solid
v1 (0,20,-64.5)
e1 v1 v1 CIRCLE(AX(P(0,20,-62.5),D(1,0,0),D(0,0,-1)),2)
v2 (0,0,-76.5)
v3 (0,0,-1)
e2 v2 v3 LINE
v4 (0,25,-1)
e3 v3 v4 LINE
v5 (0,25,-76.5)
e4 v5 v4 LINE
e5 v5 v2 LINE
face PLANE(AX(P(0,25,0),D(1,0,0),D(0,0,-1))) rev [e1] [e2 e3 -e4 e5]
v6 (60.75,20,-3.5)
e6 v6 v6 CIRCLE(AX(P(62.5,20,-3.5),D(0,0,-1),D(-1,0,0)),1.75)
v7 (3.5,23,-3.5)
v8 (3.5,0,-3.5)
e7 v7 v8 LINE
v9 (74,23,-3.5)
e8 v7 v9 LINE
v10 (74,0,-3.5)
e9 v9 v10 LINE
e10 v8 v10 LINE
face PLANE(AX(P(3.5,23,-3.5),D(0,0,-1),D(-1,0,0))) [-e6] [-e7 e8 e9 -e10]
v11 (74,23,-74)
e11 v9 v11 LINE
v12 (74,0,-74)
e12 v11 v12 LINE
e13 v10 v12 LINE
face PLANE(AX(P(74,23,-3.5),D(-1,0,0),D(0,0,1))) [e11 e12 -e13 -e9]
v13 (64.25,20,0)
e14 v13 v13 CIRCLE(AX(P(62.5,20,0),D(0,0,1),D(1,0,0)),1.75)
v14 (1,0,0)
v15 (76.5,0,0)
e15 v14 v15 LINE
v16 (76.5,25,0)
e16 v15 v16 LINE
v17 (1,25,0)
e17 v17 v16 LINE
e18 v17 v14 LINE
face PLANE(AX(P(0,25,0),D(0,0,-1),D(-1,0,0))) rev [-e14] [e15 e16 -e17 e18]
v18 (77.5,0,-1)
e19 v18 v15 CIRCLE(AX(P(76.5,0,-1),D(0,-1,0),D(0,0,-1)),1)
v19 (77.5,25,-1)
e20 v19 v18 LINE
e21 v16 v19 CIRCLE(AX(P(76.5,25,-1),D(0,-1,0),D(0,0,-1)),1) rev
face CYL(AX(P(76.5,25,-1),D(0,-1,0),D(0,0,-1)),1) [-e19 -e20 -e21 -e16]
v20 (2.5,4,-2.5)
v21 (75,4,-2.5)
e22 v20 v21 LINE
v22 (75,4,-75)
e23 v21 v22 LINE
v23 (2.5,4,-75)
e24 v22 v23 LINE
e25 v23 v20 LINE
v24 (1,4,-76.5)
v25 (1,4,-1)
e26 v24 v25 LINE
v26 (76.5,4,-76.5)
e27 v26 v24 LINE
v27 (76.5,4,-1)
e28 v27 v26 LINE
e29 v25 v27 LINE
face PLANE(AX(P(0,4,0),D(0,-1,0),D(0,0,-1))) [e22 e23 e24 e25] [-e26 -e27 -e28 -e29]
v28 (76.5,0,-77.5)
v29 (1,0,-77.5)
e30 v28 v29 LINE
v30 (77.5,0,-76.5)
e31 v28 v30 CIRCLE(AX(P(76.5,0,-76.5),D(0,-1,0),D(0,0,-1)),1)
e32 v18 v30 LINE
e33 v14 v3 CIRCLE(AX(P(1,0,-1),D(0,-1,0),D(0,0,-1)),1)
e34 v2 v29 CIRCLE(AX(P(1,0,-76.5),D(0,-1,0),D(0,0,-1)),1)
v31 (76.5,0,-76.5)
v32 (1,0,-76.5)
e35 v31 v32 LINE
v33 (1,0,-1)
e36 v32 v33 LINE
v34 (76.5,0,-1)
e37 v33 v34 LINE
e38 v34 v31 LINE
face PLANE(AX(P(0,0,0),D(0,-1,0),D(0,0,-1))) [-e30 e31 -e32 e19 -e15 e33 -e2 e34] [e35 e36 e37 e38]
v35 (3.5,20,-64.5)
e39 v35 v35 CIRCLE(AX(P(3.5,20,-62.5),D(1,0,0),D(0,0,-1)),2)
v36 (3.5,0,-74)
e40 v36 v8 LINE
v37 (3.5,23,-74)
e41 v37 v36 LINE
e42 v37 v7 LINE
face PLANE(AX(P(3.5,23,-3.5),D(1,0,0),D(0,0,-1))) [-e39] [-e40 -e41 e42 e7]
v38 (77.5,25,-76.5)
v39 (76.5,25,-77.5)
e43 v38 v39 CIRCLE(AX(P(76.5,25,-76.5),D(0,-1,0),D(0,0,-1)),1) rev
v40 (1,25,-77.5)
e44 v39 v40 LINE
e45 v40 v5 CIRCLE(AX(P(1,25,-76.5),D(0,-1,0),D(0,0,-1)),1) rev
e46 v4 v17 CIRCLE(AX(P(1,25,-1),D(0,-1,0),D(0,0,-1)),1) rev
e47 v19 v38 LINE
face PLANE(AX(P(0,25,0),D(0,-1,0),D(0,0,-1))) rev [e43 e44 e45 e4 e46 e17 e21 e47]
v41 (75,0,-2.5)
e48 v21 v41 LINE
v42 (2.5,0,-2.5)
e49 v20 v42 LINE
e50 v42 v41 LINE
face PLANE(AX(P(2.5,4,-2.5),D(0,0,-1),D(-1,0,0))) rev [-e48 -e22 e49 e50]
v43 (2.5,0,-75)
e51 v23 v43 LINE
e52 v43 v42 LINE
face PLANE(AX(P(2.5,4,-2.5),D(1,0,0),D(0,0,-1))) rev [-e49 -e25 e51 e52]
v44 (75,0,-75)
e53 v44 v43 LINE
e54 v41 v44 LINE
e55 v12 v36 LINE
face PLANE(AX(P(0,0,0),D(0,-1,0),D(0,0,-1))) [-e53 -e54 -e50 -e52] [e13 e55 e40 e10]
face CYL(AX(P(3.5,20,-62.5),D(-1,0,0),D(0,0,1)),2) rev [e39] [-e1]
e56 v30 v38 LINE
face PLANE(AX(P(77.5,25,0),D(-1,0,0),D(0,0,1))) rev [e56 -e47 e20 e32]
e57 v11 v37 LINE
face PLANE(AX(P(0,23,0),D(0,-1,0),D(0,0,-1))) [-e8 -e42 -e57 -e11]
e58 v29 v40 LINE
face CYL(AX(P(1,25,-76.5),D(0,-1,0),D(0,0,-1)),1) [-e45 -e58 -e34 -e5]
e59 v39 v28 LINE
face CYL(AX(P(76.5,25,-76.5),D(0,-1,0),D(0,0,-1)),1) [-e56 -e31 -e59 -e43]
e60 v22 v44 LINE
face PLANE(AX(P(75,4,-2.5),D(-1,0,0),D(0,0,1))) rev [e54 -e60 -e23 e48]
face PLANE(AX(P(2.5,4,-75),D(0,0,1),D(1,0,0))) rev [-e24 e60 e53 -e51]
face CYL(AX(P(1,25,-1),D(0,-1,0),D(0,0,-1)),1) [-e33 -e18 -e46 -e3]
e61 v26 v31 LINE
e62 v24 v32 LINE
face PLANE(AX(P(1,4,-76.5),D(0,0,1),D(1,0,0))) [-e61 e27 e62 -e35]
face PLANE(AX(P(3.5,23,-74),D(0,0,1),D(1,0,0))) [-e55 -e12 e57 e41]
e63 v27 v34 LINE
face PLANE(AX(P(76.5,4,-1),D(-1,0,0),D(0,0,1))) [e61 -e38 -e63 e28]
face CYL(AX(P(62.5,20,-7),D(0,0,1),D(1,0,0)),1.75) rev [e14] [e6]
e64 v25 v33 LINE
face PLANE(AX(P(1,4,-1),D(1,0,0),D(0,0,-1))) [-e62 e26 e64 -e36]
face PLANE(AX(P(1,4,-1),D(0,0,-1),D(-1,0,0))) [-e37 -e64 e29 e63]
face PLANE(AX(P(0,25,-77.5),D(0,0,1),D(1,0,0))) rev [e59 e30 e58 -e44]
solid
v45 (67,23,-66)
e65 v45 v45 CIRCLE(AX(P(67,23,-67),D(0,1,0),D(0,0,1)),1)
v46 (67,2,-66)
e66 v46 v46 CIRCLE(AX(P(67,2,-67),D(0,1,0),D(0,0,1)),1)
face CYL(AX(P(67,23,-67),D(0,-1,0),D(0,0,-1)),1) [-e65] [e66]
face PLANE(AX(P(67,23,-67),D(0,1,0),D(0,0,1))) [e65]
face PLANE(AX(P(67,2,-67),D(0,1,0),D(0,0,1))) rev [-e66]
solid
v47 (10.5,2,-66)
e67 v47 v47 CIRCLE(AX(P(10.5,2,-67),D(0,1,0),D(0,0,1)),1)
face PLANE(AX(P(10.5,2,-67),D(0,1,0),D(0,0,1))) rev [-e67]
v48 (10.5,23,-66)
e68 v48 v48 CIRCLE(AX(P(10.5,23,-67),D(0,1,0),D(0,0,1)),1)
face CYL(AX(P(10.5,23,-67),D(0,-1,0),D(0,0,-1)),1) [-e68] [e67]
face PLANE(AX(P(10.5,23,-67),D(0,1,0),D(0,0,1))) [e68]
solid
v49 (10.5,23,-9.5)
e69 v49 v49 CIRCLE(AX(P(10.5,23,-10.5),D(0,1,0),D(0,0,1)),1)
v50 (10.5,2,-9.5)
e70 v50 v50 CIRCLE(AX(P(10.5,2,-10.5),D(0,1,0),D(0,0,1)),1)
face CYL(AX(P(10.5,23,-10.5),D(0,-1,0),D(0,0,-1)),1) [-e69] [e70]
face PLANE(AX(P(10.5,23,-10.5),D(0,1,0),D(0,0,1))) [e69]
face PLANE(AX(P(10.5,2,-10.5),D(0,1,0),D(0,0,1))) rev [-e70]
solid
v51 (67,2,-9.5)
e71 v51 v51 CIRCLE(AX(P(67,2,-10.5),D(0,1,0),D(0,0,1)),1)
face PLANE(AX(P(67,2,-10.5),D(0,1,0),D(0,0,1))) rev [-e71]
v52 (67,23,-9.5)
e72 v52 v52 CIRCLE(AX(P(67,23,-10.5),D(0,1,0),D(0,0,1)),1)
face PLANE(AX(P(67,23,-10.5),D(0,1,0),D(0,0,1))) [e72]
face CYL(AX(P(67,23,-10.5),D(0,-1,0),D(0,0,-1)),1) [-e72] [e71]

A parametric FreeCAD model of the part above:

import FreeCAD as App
import Part
import Sketcher
from FreeCAD import Vector
Q = App.Units.Quantity


def edges_at(feature, points):
    """Names of the edges that pass closest to the given points."""
    edges = feature.Shape.Edges
    near = lambda p: min(range(len(edges)), key=lambda i: edges[i].distToShape(Part.Vertex(*p))[0])
    return sorted({f"Edge{near(p) + 1}" for p in points})

doc = App.newDocument("Part")
params = doc.addObject("Spreadsheet::Sheet", "Params")
for row, (alias, value) in enumerate([
    ("sketch1_width", "77.5 mm"),
    ("pad1_length", "25 mm"),
    ("sketch2_width", "70.5 mm"),
    ("pocket1_length", "23 mm"),
    ("sketch3_width", "75.5 mm"),
    ("sketch3_width2", "72.5 mm"),
    ("pocket2_length", "4 mm"),
    ("sketch4_diameter", "3.5 mm"),
    ("pocket3_length", "7 mm"),
    ("sketch5_diameter", "4 mm"),
    ("pocket4_length", "3.5 mm"),
    ("fillet_radius", "1 mm"),
    ("fillet2_radius", "1 mm"),
    ("fillet3_radius", "1 mm"),
    ("fillet4_radius", "1 mm"),
    ("sketch6_diameter", "2 mm"),
    ("pad2_length", "21 mm"),
    ("sketch7_diameter", "2 mm"),
    ("pad3_length", "21 mm"),
    ("sketch8_diameter", "2 mm"),
    ("pad4_length", "21 mm"),
    ("sketch9_diameter", "2 mm"),
    ("pad5_length", "21 mm"),
], start=1):
    params.set(f"A{row}", alias)
    params.set(f"B{row}", "=" + value)
    params.setAlias(f"B{row}", alias)

body = doc.addObject("PartDesign::Body", "Body")

# Sketch on XZ plane
sketch1 = doc.addObject("Sketcher::SketchObject", "Sketch")
body.addObject(sketch1)
sketch1.AttachmentSupport = (doc.XZ_Plane, [""])
sketch1.MapMode = "FlatFace"
sketch1.addGeometry(Part.LineSegment(Vector(0, -77.5, 0), Vector(0, 0, 0)), False)
sketch1.addGeometry(Part.LineSegment(Vector(0, 0, 0), Vector(77.5, 0, 0)), False)
sketch1.addGeometry(Part.LineSegment(Vector(77.5, 0, 0), Vector(77.5, -77.5, 0)), False)
sketch1.addGeometry(Part.LineSegment(Vector(77.5, -77.5, 0), Vector(0, -77.5, 0)), False)
sketch1.addConstraint(Sketcher.Constraint("Coincident", 0, 2, 1, 1))
sketch1.addConstraint(Sketcher.Constraint("Coincident", 1, 2, 2, 1))
sketch1.addConstraint(Sketcher.Constraint("Coincident", 2, 2, 3, 1))
sketch1.addConstraint(Sketcher.Constraint("Coincident", 3, 2, 0, 1))
sketch1.addConstraint(Sketcher.Constraint("Vertical", 0))
sketch1.addConstraint(Sketcher.Constraint("Horizontal", 1))
sketch1.addConstraint(Sketcher.Constraint("Vertical", 2))
sketch1.addConstraint(Sketcher.Constraint("Horizontal", 3))
sketch1.addConstraint(Sketcher.Constraint("Coincident", 0, 2, -1, 1))
sketch1.addConstraint(Sketcher.Constraint("Equal", 3, 0))
sketch1.addConstraint(Sketcher.Constraint("DistanceX", 1, 1, 1, 2, Q("77.5 mm")))
sketch1.setExpression("Constraints[10]", "Params.sketch1_width")
pad1 = doc.addObject("PartDesign::Pad", "Pad")
body.addObject(pad1)
pad1.Profile = sketch1
pad1.setExpression("Length", "Params.pad1_length")
pad1.Reversed = True

# Sketch on XZ plane
sketch2 = doc.addObject("Sketcher::SketchObject", "Sketch001")
body.addObject(sketch2)
sketch2.AttachmentSupport = (doc.XZ_Plane, [""])
sketch2.MapMode = "FlatFace"
sketch2.addGeometry(Part.LineSegment(Vector(3.5, -74, 0), Vector(3.5, -3.5, 0)), False)
sketch2.addGeometry(Part.LineSegment(Vector(3.5, -3.5, 0), Vector(74, -3.5, 0)), False)
sketch2.addGeometry(Part.LineSegment(Vector(74, -3.5, 0), Vector(74, -74, 0)), False)
sketch2.addGeometry(Part.LineSegment(Vector(74, -74, 0), Vector(3.5, -74, 0)), False)
sketch2.addConstraint(Sketcher.Constraint("Coincident", 0, 2, 1, 1))
sketch2.addConstraint(Sketcher.Constraint("Coincident", 1, 2, 2, 1))
sketch2.addConstraint(Sketcher.Constraint("Coincident", 2, 2, 3, 1))
sketch2.addConstraint(Sketcher.Constraint("Coincident", 3, 2, 0, 1))
sketch2.addConstraint(Sketcher.Constraint("Vertical", 0))
sketch2.addConstraint(Sketcher.Constraint("Horizontal", 1))
sketch2.addConstraint(Sketcher.Constraint("Vertical", 2))
sketch2.addConstraint(Sketcher.Constraint("Horizontal", 3))
sketch2.addConstraint(Sketcher.Constraint("Equal", 3, 0))
sketch2.addConstraint(Sketcher.Constraint("DistanceX", 1, 1, 1, 2, Q("70.5 mm")))
sketch2.addConstraint(Sketcher.Constraint("DistanceX", -1, 1, 1, 2, Q("74 mm")))
sketch2.addConstraint(Sketcher.Constraint("DistanceY", 2, 2, -1, 1, Q("74 mm")))
sketch2.setExpression("Constraints[9]", "Params.sketch2_width")
pocket1 = doc.addObject("PartDesign::Pocket", "Pocket")
body.addObject(pocket1)
pocket1.Profile = sketch2
pocket1.setExpression("Length", "Params.pocket1_length")

# Sketch on XZ plane
sketch3 = doc.addObject("Sketcher::SketchObject", "Sketch002")
body.addObject(sketch3)
sketch3.AttachmentSupport = (doc.XZ_Plane, [""])
sketch3.MapMode = "FlatFace"
sketch3.addGeometry(Part.LineSegment(Vector(1, -76.5, 0), Vector(1, -1, 0)), False)
sketch3.addGeometry(Part.LineSegment(Vector(1, -1, 0), Vector(76.5, -1, 0)), False)
sketch3.addGeometry(Part.LineSegment(Vector(76.5, -1, 0), Vector(76.5, -76.5, 0)), False)
sketch3.addGeometry(Part.LineSegment(Vector(76.5, -76.5, 0), Vector(1, -76.5, 0)), False)
sketch3.addGeometry(Part.LineSegment(Vector(75, -2.5, 0), Vector(2.5, -2.5, 0)), False)
sketch3.addGeometry(Part.LineSegment(Vector(2.5, -2.5, 0), Vector(2.5, -75, 0)), False)
sketch3.addGeometry(Part.LineSegment(Vector(2.5, -75, 0), Vector(75, -75, 0)), False)
sketch3.addGeometry(Part.LineSegment(Vector(75, -75, 0), Vector(75, -2.5, 0)), False)
sketch3.addConstraint(Sketcher.Constraint("Coincident", 0, 2, 1, 1))
sketch3.addConstraint(Sketcher.Constraint("Coincident", 1, 2, 2, 1))
sketch3.addConstraint(Sketcher.Constraint("Coincident", 2, 2, 3, 1))
sketch3.addConstraint(Sketcher.Constraint("Coincident", 3, 2, 0, 1))
sketch3.addConstraint(Sketcher.Constraint("Coincident", 4, 2, 5, 1))
sketch3.addConstraint(Sketcher.Constraint("Coincident", 5, 2, 6, 1))
sketch3.addConstraint(Sketcher.Constraint("Coincident", 6, 2, 7, 1))
sketch3.addConstraint(Sketcher.Constraint("Coincident", 7, 2, 4, 1))
sketch3.addConstraint(Sketcher.Constraint("Vertical", 0))
sketch3.addConstraint(Sketcher.Constraint("Horizontal", 1))
sketch3.addConstraint(Sketcher.Constraint("Vertical", 2))
sketch3.addConstraint(Sketcher.Constraint("Horizontal", 3))
sketch3.addConstraint(Sketcher.Constraint("Horizontal", 4))
sketch3.addConstraint(Sketcher.Constraint("Vertical", 5))
sketch3.addConstraint(Sketcher.Constraint("Horizontal", 6))
sketch3.addConstraint(Sketcher.Constraint("Vertical", 7))
sketch3.addConstraint(Sketcher.Constraint("Equal", 3, 0))
sketch3.addConstraint(Sketcher.Constraint("Equal", 6, 5))
sketch3.addConstraint(Sketcher.Constraint("DistanceX", 1, 1, 1, 2, Q("75.5 mm")))
sketch3.addConstraint(Sketcher.Constraint("DistanceX", 4, 2, 4, 1, Q("72.5 mm")))
sketch3.addConstraint(Sketcher.Constraint("DistanceX", -1, 1, 0, 2, Q("1 mm")))
sketch3.addConstraint(Sketcher.Constraint("DistanceY", 0, 2, -1, 1, Q("1 mm")))
sketch3.addConstraint(Sketcher.Constraint("DistanceY", 5, 2, -1, 1, Q("75 mm")))
sketch3.addConstraint(Sketcher.Constraint("DistanceX", -1, 1, 6, 2, Q("75 mm")))
sketch3.setExpression("Constraints[18]", "Params.sketch3_width")
sketch3.setExpression("Constraints[19]", "Params.sketch3_width2")
pocket2 = doc.addObject("PartDesign::Pocket", "Pocket001")
body.addObject(pocket2)
pocket2.Profile = sketch3
pocket2.setExpression("Length", "Params.pocket2_length")

# Sketch on XY plane
sketch4 = doc.addObject("Sketcher::SketchObject", "Sketch003")
body.addObject(sketch4)
sketch4.AttachmentSupport = (doc.XY_Plane, [""])
sketch4.MapMode = "FlatFace"
sketch4.addGeometry(Part.Circle(Vector(62.5, 20, 0), Vector(0, 0, 1), 1.75), False)
sketch4.addConstraint(Sketcher.Constraint("Diameter", 0, Q("3.5 mm")))
sketch4.addConstraint(Sketcher.Constraint("DistanceY", -1, 1, 0, 3, Q("20 mm")))
sketch4.addConstraint(Sketcher.Constraint("DistanceX", -1, 1, 0, 3, Q("62.5 mm")))
sketch4.setExpression("Constraints[0]", "Params.sketch4_diameter")
pocket3 = doc.addObject("PartDesign::Pocket", "Pocket002")
body.addObject(pocket3)
pocket3.Profile = sketch4
pocket3.setExpression("Length", "Params.pocket3_length")

# Sketch on YZ plane
sketch5 = doc.addObject("Sketcher::SketchObject", "Sketch004")
body.addObject(sketch5)
sketch5.AttachmentSupport = (doc.YZ_Plane, [""])
sketch5.MapMode = "FlatFace"
sketch5.addGeometry(Part.Circle(Vector(20, -62.5, 0), Vector(0, 0, 1), 2), False)
sketch5.addConstraint(Sketcher.Constraint("Diameter", 0, Q("4 mm")))
sketch5.addConstraint(Sketcher.Constraint("DistanceX", -1, 1, 0, 3, Q("20 mm")))
sketch5.addConstraint(Sketcher.Constraint("DistanceY", 0, 3, -1, 1, Q("62.5 mm")))
sketch5.setExpression("Constraints[0]", "Params.sketch5_diameter")
pocket4 = doc.addObject("PartDesign::Pocket", "Pocket003")
body.addObject(pocket4)
pocket4.Profile = sketch5
pocket4.setExpression("Length", "Params.pocket4_length")
pocket4.Reversed = True
doc.recompute()

fillet = doc.addObject("PartDesign::Fillet", "Fillet")
body.addObject(fillet)
fillet.Base = (pocket4, edges_at(pocket4, [(77.5, 12.5, -77.5)]))
fillet.setExpression("Radius", "Params.fillet_radius")
doc.recompute()

fillet2 = doc.addObject("PartDesign::Fillet", "Fillet001")
body.addObject(fillet2)
fillet2.Base = (fillet, edges_at(fillet, [(77.5, 12.5, 0)]))
fillet2.setExpression("Radius", "Params.fillet2_radius")
doc.recompute()

fillet3 = doc.addObject("PartDesign::Fillet", "Fillet002")
body.addObject(fillet3)
fillet3.Base = (fillet2, edges_at(fillet2, [(0, 12.5, 0)]))
fillet3.setExpression("Radius", "Params.fillet3_radius")
doc.recompute()

fillet4 = doc.addObject("PartDesign::Fillet", "Fillet003")
body.addObject(fillet4)
fillet4.Base = (fillet3, edges_at(fillet3, [(0, 12.5, -77.5)]))
fillet4.setExpression("Radius", "Params.fillet4_radius")
body2 = doc.addObject("PartDesign::Body", "Body001")

# Sketch on XZ plane
sketch6 = doc.addObject("Sketcher::SketchObject", "Sketch005")
body2.addObject(sketch6)
sketch6.AttachmentSupport = (doc.getObject("XZ_Plane001"), [""])
sketch6.MapMode = "FlatFace"
sketch6.AttachmentOffset = App.Placement(Vector(0, 0, -2), App.Rotation())
sketch6.addGeometry(Part.Circle(Vector(10.5, -10.5, 0), Vector(0, 0, 1), 1), False)
sketch6.addConstraint(Sketcher.Constraint("Diameter", 0, Q("2 mm")))
sketch6.addConstraint(Sketcher.Constraint("DistanceX", -1, 1, 0, 3, Q("10.5 mm")))
sketch6.addConstraint(Sketcher.Constraint("DistanceY", 0, 3, -1, 1, Q("10.5 mm")))
sketch6.setExpression("Constraints[0]", "Params.sketch6_diameter")
pad2 = doc.addObject("PartDesign::Pad", "Pad001")
body2.addObject(pad2)
pad2.Profile = sketch6
pad2.setExpression("Length", "Params.pad2_length")
pad2.Reversed = True
body3 = doc.addObject("PartDesign::Body", "Body002")

# Sketch on XZ plane
sketch7 = doc.addObject("Sketcher::SketchObject", "Sketch006")
body3.addObject(sketch7)
sketch7.AttachmentSupport = (doc.getObject("XZ_Plane002"), [""])
sketch7.MapMode = "FlatFace"
sketch7.AttachmentOffset = App.Placement(Vector(0, 0, -2), App.Rotation())
sketch7.addGeometry(Part.Circle(Vector(67, -10.5, 0), Vector(0, 0, 1), 1), False)
sketch7.addConstraint(Sketcher.Constraint("Diameter", 0, Q("2 mm")))
sketch7.addConstraint(Sketcher.Constraint("DistanceX", -1, 1, 0, 3, Q("67 mm")))
sketch7.addConstraint(Sketcher.Constraint("DistanceY", 0, 3, -1, 1, Q("10.5 mm")))
sketch7.setExpression("Constraints[0]", "Params.sketch7_diameter")
pad3 = doc.addObject("PartDesign::Pad", "Pad002")
body3.addObject(pad3)
pad3.Profile = sketch7
pad3.setExpression("Length", "Params.pad3_length")
pad3.Reversed = True
body4 = doc.addObject("PartDesign::Body", "Body003")

# Sketch on XZ plane
sketch8 = doc.addObject("Sketcher::SketchObject", "Sketch007")
body4.addObject(sketch8)
sketch8.AttachmentSupport = (doc.getObject("XZ_Plane003"), [""])
sketch8.MapMode = "FlatFace"
sketch8.AttachmentOffset = App.Placement(Vector(0, 0, -2), App.Rotation())
sketch8.addGeometry(Part.Circle(Vector(67, -67, 0), Vector(0, 0, 1), 1), False)
sketch8.addConstraint(Sketcher.Constraint("Diameter", 0, Q("2 mm")))
sketch8.addConstraint(Sketcher.Constraint("DistanceX", -1, 1, 0, 3, Q("67 mm")))
sketch8.addConstraint(Sketcher.Constraint("DistanceY", 0, 3, -1, 1, Q("67 mm")))
sketch8.setExpression("Constraints[0]", "Params.sketch8_diameter")
pad4 = doc.addObject("PartDesign::Pad", "Pad003")
body4.addObject(pad4)
pad4.Profile = sketch8
pad4.setExpression("Length", "Params.pad4_length")
pad4.Reversed = True
body5 = doc.addObject("PartDesign::Body", "Body004")

# Sketch on XZ plane
sketch9 = doc.addObject("Sketcher::SketchObject", "Sketch008")
body5.addObject(sketch9)
sketch9.AttachmentSupport = (doc.getObject("XZ_Plane004"), [""])
sketch9.MapMode = "FlatFace"
sketch9.AttachmentOffset = App.Placement(Vector(0, 0, -2), App.Rotation())
sketch9.addGeometry(Part.Circle(Vector(10.5, -67, 0), Vector(0, 0, 1), 1), False)
sketch9.addConstraint(Sketcher.Constraint("Diameter", 0, Q("2 mm")))
sketch9.addConstraint(Sketcher.Constraint("DistanceY", 0, 3, -1, 1, Q("67 mm")))
sketch9.addConstraint(Sketcher.Constraint("DistanceX", -1, 1, 0, 3, Q("10.5 mm")))
sketch9.setExpression("Constraints[0]", "Params.sketch9_diameter")
pad5 = doc.addObject("PartDesign::Pad", "Pad004")
body5.addObject(pad5)
pad5.Profile = sketch9
pad5.setExpression("Length", "Params.pad5_length")
pad5.Reversed = True

doc.recompute()
